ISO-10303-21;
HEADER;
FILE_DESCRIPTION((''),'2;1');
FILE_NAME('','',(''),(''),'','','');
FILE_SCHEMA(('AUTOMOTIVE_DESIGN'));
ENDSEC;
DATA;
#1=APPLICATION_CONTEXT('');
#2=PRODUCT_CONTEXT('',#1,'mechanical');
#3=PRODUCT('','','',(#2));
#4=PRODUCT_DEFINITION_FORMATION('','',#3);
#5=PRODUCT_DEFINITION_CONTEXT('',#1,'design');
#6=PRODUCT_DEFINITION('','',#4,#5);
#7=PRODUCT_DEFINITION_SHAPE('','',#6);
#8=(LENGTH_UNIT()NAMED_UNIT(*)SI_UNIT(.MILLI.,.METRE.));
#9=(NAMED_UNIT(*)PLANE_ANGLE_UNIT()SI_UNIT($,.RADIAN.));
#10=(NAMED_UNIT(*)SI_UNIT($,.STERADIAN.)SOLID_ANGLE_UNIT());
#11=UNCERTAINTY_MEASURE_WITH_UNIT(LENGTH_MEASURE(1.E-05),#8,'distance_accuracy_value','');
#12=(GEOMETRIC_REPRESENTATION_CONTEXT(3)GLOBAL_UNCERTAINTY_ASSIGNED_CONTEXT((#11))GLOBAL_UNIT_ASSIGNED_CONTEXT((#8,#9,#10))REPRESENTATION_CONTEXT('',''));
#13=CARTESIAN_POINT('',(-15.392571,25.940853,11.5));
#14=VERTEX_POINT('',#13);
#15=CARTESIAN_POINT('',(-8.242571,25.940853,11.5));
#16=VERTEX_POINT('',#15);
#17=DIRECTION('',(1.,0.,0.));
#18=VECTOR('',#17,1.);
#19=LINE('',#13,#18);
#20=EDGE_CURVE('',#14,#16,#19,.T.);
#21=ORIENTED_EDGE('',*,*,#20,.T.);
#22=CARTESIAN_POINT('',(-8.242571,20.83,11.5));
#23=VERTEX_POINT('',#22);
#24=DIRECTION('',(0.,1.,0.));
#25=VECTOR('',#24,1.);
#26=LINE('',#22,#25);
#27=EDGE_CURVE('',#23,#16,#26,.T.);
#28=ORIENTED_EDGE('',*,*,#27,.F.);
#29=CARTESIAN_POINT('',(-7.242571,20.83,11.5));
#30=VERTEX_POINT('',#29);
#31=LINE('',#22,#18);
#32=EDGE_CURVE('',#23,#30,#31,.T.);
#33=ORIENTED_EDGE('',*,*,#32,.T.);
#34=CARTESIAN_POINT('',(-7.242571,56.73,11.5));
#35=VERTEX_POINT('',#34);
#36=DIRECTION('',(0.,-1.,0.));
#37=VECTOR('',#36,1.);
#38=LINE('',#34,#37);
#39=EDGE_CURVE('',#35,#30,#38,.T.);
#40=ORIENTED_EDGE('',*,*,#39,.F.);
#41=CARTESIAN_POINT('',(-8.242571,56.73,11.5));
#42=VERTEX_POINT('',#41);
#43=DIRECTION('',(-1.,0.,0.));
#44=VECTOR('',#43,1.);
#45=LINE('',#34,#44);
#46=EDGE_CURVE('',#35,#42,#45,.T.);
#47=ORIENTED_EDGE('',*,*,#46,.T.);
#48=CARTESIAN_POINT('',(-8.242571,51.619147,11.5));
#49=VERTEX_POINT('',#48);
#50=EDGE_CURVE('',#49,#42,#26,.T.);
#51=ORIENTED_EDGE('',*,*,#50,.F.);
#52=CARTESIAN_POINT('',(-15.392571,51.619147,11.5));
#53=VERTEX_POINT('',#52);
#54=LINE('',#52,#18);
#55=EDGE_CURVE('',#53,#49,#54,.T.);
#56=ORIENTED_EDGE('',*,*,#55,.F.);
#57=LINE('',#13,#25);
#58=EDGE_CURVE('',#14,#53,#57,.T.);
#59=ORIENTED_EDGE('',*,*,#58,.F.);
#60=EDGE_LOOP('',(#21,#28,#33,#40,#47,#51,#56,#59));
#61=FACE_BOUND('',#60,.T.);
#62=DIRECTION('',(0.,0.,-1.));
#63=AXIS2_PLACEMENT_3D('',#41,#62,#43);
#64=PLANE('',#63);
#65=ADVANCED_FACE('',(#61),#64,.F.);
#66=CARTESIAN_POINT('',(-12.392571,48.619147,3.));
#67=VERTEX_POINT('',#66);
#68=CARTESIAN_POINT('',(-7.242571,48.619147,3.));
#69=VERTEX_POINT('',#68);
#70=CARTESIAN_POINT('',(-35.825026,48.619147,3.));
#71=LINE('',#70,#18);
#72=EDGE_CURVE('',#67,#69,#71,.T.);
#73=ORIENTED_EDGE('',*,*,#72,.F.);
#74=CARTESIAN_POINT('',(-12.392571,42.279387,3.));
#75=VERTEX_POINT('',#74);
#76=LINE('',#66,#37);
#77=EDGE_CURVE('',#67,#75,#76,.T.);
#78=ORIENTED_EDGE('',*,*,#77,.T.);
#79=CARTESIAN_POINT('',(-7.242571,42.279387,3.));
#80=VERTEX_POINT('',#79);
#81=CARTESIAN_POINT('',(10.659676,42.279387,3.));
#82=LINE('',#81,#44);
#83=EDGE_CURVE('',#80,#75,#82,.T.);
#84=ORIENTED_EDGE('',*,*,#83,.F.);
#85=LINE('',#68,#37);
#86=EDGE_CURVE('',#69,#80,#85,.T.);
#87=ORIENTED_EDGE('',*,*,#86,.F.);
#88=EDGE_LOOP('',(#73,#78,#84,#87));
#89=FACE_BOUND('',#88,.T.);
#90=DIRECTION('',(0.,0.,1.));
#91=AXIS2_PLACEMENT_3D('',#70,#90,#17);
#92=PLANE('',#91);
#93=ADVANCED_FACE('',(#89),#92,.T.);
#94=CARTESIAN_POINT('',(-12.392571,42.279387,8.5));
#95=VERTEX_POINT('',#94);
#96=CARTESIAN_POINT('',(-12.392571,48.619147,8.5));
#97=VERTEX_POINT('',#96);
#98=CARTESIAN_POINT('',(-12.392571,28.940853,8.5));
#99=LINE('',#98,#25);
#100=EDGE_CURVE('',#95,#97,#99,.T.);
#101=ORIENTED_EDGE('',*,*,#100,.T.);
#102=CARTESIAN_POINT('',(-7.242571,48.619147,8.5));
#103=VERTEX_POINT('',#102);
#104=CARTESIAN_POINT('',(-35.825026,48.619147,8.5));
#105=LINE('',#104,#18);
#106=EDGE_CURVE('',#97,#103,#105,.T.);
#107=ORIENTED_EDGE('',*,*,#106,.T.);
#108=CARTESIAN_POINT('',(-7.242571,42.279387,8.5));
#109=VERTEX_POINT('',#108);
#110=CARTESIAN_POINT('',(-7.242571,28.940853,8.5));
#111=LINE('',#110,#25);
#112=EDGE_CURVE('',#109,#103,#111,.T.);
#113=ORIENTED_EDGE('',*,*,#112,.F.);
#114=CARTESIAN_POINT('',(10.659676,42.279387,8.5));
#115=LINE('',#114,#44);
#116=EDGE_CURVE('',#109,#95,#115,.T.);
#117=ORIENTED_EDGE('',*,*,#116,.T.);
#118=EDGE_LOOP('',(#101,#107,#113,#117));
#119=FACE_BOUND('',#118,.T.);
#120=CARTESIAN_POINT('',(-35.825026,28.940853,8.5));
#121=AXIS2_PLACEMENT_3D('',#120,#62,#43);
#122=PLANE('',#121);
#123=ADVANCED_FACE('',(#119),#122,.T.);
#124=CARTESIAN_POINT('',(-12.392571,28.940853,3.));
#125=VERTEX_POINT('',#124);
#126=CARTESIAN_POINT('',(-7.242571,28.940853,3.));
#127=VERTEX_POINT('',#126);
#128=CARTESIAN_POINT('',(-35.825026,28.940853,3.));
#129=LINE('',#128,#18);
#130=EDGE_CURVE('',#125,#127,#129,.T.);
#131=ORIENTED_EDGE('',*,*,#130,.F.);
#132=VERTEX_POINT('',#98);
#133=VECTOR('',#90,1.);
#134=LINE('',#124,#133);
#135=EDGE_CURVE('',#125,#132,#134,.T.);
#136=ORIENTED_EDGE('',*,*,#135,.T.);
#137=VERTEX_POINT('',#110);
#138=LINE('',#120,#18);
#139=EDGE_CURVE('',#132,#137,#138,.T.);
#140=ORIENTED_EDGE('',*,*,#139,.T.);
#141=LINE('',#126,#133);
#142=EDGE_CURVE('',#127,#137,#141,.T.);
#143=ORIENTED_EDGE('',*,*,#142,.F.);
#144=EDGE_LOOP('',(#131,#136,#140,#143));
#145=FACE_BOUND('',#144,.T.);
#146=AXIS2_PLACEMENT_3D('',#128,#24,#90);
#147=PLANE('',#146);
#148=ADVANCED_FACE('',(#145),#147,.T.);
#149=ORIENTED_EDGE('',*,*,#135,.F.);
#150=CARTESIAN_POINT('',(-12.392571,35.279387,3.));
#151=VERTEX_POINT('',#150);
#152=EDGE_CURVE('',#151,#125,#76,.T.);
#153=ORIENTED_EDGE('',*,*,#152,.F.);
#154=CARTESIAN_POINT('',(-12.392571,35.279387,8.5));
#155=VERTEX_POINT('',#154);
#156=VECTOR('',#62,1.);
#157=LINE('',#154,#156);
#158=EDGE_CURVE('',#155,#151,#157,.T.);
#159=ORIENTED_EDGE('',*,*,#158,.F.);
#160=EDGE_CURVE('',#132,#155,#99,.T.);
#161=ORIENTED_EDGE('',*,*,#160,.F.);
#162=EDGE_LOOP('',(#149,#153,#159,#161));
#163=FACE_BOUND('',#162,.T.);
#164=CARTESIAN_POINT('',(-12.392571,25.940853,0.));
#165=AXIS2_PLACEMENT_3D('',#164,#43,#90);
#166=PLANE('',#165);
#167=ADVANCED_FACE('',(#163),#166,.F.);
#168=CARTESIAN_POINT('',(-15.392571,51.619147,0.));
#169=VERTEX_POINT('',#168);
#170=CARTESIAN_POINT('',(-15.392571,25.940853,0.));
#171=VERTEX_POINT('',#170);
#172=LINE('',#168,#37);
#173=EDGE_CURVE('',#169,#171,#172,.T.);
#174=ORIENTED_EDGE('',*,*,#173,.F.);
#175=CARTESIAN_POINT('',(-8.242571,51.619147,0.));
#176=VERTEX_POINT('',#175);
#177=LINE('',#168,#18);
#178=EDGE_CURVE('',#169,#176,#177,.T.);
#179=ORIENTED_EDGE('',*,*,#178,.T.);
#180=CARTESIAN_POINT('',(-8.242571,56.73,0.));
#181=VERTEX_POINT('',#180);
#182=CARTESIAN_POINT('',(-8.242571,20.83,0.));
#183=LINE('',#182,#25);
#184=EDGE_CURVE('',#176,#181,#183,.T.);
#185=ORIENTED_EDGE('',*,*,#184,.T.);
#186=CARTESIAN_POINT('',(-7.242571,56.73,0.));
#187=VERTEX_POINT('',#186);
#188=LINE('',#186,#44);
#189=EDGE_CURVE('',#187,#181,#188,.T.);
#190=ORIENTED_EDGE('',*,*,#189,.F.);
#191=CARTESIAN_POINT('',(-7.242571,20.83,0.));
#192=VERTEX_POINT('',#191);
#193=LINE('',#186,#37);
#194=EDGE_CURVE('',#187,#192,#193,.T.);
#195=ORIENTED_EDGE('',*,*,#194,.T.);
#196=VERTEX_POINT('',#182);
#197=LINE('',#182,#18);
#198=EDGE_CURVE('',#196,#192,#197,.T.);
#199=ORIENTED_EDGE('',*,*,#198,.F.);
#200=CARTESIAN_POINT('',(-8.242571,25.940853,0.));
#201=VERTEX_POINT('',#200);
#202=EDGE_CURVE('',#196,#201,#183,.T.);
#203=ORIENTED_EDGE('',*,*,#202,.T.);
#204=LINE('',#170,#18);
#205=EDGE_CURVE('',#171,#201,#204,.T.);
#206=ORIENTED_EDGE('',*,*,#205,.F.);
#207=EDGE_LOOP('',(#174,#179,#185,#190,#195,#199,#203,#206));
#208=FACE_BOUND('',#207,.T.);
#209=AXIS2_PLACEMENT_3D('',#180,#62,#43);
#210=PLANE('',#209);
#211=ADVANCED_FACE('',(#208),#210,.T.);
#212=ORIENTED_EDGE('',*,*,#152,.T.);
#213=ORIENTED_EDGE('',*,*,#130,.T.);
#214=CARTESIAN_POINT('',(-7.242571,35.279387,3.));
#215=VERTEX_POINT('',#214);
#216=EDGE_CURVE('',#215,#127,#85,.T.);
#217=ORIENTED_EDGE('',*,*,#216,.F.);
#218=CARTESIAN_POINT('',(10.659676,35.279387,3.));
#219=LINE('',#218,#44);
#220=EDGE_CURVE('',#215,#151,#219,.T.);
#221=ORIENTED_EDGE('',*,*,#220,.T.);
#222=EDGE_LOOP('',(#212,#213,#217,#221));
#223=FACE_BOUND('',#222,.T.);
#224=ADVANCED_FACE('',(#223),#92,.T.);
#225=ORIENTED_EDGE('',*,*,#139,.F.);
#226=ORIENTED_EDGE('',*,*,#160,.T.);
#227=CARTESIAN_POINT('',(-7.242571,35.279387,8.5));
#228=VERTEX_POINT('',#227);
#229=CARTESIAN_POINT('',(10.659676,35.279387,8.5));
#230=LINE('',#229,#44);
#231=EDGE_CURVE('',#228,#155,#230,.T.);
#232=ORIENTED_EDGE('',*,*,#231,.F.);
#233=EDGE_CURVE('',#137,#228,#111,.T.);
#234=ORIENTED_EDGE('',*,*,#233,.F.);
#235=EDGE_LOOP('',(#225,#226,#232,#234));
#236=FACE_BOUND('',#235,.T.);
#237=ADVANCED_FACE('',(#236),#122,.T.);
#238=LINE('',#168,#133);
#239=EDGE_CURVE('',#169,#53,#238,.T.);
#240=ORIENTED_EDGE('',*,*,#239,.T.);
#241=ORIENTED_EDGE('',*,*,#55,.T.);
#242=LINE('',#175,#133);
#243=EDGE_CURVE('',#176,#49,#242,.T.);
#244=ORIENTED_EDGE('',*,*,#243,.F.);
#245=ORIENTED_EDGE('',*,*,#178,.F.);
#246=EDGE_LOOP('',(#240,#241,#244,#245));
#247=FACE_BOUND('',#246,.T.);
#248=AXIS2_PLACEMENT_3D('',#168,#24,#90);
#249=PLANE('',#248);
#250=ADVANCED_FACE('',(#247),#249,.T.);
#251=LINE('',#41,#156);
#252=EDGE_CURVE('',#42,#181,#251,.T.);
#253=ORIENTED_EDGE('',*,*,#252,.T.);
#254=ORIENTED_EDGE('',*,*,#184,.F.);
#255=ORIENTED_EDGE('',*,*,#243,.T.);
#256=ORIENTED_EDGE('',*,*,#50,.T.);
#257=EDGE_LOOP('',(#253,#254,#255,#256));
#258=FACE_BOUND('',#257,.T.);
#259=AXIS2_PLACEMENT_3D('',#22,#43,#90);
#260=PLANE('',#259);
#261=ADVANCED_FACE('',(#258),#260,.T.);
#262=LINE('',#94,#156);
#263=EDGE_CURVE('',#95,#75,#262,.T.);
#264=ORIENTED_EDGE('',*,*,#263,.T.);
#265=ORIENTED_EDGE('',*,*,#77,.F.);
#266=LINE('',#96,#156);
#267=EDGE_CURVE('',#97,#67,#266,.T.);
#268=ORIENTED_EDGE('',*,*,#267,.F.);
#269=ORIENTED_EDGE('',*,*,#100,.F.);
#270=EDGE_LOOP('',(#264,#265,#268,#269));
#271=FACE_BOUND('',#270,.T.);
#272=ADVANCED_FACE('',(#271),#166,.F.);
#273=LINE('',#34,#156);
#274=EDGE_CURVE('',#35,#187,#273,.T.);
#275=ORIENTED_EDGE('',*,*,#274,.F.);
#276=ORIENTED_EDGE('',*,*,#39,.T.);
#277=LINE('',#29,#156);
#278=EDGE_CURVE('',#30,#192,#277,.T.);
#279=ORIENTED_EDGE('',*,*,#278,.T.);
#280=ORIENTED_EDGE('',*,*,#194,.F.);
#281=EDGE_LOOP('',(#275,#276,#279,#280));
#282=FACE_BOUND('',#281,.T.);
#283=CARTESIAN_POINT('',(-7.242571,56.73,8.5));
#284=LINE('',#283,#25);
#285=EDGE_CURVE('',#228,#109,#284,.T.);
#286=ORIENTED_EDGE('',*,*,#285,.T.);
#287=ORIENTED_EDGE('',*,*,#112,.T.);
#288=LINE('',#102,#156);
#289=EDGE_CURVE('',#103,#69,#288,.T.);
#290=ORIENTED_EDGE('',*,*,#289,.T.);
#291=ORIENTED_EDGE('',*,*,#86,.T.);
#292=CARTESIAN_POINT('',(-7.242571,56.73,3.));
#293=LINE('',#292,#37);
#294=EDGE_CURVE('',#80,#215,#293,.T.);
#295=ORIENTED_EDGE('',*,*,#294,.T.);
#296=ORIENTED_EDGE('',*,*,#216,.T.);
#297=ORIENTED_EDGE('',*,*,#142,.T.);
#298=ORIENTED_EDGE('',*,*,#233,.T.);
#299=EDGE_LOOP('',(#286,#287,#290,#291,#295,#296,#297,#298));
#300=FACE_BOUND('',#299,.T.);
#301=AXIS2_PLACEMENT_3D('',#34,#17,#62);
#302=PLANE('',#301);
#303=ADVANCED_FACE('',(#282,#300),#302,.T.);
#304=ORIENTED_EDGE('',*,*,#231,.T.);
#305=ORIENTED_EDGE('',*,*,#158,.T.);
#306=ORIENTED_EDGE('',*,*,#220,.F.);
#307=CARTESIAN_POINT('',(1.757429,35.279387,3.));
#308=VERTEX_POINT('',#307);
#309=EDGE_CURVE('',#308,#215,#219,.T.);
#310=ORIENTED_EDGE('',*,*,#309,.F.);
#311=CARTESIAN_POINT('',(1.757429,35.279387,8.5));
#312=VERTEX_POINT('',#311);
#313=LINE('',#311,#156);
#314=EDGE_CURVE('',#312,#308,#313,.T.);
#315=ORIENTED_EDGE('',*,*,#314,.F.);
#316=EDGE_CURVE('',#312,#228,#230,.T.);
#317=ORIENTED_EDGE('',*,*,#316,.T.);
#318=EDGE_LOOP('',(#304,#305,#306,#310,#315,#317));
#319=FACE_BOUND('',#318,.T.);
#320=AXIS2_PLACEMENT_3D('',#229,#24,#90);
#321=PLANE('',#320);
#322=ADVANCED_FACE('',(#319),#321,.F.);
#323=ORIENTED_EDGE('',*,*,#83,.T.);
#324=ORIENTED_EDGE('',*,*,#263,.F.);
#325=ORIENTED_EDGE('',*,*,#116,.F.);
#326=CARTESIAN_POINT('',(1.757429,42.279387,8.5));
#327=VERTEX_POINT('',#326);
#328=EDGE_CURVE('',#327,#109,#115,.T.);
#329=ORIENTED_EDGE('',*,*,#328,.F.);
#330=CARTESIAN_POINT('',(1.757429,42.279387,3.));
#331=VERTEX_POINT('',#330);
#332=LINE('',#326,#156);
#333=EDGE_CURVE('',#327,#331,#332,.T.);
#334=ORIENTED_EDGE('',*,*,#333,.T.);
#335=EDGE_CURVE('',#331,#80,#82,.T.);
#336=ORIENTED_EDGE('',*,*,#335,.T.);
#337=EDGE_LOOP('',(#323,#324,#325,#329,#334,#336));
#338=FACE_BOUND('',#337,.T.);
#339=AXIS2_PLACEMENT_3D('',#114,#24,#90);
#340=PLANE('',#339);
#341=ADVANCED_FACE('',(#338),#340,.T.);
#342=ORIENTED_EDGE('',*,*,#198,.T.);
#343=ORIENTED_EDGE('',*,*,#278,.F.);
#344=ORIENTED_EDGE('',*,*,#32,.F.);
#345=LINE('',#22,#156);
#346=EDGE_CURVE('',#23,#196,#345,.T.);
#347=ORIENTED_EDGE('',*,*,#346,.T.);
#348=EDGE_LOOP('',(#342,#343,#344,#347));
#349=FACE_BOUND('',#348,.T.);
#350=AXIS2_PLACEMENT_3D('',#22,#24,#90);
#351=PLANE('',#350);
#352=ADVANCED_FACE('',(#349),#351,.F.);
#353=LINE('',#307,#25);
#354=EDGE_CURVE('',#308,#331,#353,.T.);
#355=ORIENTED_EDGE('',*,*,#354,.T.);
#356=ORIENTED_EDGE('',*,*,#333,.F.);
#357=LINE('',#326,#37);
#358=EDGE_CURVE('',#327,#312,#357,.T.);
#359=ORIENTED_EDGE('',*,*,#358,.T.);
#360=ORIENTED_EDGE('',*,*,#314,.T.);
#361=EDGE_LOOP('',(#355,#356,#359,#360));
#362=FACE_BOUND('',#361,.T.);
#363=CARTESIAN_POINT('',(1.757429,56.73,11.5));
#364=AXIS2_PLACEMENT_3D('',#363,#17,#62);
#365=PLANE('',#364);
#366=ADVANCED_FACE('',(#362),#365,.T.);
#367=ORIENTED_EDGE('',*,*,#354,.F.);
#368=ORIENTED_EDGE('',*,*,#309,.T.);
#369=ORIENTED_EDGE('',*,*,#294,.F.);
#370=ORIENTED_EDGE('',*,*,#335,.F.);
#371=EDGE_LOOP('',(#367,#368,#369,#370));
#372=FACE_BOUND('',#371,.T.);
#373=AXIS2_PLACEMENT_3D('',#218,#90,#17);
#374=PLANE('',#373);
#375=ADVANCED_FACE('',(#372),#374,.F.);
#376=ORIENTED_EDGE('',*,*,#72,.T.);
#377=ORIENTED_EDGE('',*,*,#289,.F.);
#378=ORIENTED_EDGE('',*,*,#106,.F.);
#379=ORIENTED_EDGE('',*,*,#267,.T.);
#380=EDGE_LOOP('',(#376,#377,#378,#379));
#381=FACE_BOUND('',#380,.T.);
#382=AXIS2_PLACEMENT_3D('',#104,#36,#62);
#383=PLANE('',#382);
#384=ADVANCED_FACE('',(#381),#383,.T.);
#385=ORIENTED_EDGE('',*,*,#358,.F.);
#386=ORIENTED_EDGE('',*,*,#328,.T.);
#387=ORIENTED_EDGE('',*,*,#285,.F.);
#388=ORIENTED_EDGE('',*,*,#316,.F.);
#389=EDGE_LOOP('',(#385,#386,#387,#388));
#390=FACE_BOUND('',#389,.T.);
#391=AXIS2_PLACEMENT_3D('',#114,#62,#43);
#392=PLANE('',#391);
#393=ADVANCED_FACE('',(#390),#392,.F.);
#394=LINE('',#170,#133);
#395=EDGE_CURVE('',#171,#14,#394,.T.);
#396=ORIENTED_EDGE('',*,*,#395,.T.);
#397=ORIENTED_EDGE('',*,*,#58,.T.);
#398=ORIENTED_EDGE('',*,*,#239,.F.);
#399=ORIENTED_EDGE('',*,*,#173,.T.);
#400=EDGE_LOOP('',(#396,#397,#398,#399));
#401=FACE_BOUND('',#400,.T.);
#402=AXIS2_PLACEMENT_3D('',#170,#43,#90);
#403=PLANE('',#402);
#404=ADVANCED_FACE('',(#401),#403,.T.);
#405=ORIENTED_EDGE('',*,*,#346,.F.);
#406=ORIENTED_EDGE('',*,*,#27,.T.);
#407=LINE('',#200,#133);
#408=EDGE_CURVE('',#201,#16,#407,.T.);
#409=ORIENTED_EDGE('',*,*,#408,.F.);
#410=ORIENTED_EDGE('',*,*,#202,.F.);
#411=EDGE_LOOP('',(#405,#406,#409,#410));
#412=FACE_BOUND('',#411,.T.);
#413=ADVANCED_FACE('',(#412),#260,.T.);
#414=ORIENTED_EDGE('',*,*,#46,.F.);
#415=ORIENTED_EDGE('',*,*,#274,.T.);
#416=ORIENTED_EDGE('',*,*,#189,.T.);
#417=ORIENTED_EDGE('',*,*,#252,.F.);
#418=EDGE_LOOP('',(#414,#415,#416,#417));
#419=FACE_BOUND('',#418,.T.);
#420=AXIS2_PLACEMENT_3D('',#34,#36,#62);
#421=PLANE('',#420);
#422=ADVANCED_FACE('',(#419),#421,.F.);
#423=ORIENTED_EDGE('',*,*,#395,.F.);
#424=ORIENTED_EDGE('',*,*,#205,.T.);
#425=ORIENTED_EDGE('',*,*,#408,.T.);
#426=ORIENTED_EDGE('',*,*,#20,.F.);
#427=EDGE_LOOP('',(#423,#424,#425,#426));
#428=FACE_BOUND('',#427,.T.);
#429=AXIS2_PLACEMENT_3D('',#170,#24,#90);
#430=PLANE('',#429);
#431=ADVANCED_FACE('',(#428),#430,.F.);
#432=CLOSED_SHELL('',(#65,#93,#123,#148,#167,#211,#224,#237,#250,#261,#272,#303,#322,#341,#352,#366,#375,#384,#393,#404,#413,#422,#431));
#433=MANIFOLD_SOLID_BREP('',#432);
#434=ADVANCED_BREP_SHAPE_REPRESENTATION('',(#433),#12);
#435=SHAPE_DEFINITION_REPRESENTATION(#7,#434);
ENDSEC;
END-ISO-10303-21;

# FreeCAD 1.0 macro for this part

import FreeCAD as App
import Part
import Sketcher

doc = App.newDocument("Part")
body = doc.addObject("PartDesign::Body", "Body")

# Sketch on XY plane
sketch1 = doc.addObject("Sketcher::SketchObject", "Sketch")
body.addObject(sketch1)
sketch1.AttachmentSupport = (doc.XY_Plane, [""])
sketch1.MapMode = "FlatFace"
sketch1.addGeometry([
    Part.LineSegment(App.Vector(-8.2, 56.7, 0), App.Vector(-8.2, 20.8, 0)),
    Part.LineSegment(App.Vector(-8.2, 20.8, 0), App.Vector(-7.2, 20.8, 0)),
    Part.LineSegment(App.Vector(-7.2, 20.8, 0), App.Vector(-7.2, 56.7, 0)),
    Part.LineSegment(App.Vector(-7.2, 56.7, 0), App.Vector(-8.2, 56.7, 0)),
], False)
sketch1.addConstraint([
    Sketcher.Constraint("Coincident", 0, 2, 1, 1),
    Sketcher.Constraint("Coincident", 1, 2, 2, 1),
    Sketcher.Constraint("Coincident", 2, 2, 3, 1),
    Sketcher.Constraint("Coincident", 3, 2, 0, 1),
    Sketcher.Constraint("Vertical", 0),
    Sketcher.Constraint("Horizontal", 1),
    Sketcher.Constraint("Vertical", 2),
    Sketcher.Constraint("Horizontal", 3),
    Sketcher.Constraint("DistanceX", 1, 1, 1, 2, 1.0),
    Sketcher.Constraint("DistanceY", 0, 2, 0, 1, 35.9),
    Sketcher.Constraint("DistanceY", -1, 1, 0, 2, 20.83),
    Sketcher.Constraint("DistanceX", 0, 2, -1, 1, 8.242571),
])
pad1 = doc.addObject("PartDesign::Pad", "Pad")
body.addObject(pad1)
pad1.Profile = sketch1
pad1.Length = 11.5

# Sketch on YZ plane
sketch2 = doc.addObject("Sketcher::SketchObject", "Sketch001")
body.addObject(sketch2)
sketch2.AttachmentSupport = (doc.YZ_Plane, [""])
sketch2.MapMode = "FlatFace"
sketch2.AttachmentOffset = App.Placement(App.Vector(0, 0, -8.242571), App.Rotation())
sketch2.addGeometry([
    Part.LineSegment(App.Vector(52, 0, 0), App.Vector(26, 0, 0)),
    Part.LineSegment(App.Vector(26, 0, 0), App.Vector(26, 12, 0)),
    Part.LineSegment(App.Vector(26, 12, 0), App.Vector(52, 12, 0)),
    Part.LineSegment(App.Vector(52, 12, 0), App.Vector(52, 0, 0)),
], False)
sketch2.addConstraint([
    Sketcher.Constraint("Coincident", 0, 2, 1, 1),
    Sketcher.Constraint("Coincident", 1, 2, 2, 1),
    Sketcher.Constraint("Coincident", 2, 2, 3, 1),
    Sketcher.Constraint("Coincident", 3, 2, 0, 1),
    Sketcher.Constraint("Horizontal", 0),
    Sketcher.Constraint("Vertical", 1),
    Sketcher.Constraint("Horizontal", 2),
    Sketcher.Constraint("Vertical", 3),
    Sketcher.Constraint("PointOnObject", 0, 2, -1),
    Sketcher.Constraint("DistanceY", 1, 1, 1, 2, 11.5),
    Sketcher.Constraint("DistanceX", 0, 2, 0, 1, 25.678293),
    Sketcher.Constraint("DistanceX", -1, 1, 0, 2, 25.940853),
])
pad2 = doc.addObject("PartDesign::Pad", "Pad001")
body.addObject(pad2)
pad2.Profile = sketch2
pad2.Length = 7.15
pad2.Reversed = True

# Sketch on YZ plane
sketch3 = doc.addObject("Sketcher::SketchObject", "Sketch002")
body.addObject(sketch3)
sketch3.AttachmentSupport = (doc.YZ_Plane, [""])
sketch3.MapMode = "FlatFace"
sketch3.AttachmentOffset = App.Placement(App.Vector(0, 0, -7.242571), App.Rotation())
sketch3.addGeometry([
    Part.LineSegment(App.Vector(49, 8, 0), App.Vector(29, 8, 0)),
    Part.LineSegment(App.Vector(29, 8, 0), App.Vector(29, 3, 0)),
    Part.LineSegment(App.Vector(29, 3, 0), App.Vector(49, 3, 0)),
    Part.LineSegment(App.Vector(49, 3, 0), App.Vector(49, 8, 0)),
], False)
sketch3.addConstraint([
    Sketcher.Constraint("Coincident", 0, 2, 1, 1),
    Sketcher.Constraint("Coincident", 1, 2, 2, 1),
    Sketcher.Constraint("Coincident", 2, 2, 3, 1),
    Sketcher.Constraint("Coincident", 3, 2, 0, 1),
    Sketcher.Constraint("Horizontal", 0),
    Sketcher.Constraint("Vertical", 1),
    Sketcher.Constraint("Horizontal", 2),
    Sketcher.Constraint("Vertical", 3),
    Sketcher.Constraint("DistanceY", 1, 2, 1, 1, 5.5),
    Sketcher.Constraint("DistanceY", -1, 1, 1, 2, 3.0),
    Sketcher.Constraint("DistanceX", 0, 2, 0, 1, 19.678293),
    Sketcher.Constraint("DistanceX", -1, 1, 0, 2, 28.940853),
])
pocket1 = doc.addObject("PartDesign::Pocket", "Pocket")
body.addObject(pocket1)
pocket1.Profile = sketch3
pocket1.Length = 5.15

# Sketch on YZ plane
sketch4 = doc.addObject("Sketcher::SketchObject", "Sketch003")
body.addObject(sketch4)
sketch4.AttachmentSupport = (doc.YZ_Plane, [""])
sketch4.MapMode = "FlatFace"
sketch4.AttachmentOffset = App.Placement(App.Vector(0, 0, -12.392571), App.Rotation())
sketch4.addGeometry([
    Part.LineSegment(App.Vector(42, 8, 0), App.Vector(35, 8, 0)),
    Part.LineSegment(App.Vector(35, 8, 0), App.Vector(35, 3, 0)),
    Part.LineSegment(App.Vector(35, 3, 0), App.Vector(42, 3, 0)),
    Part.LineSegment(App.Vector(42, 3, 0), App.Vector(42, 8, 0)),
], False)
sketch4.addConstraint([
    Sketcher.Constraint("Coincident", 0, 2, 1, 1),
    Sketcher.Constraint("Coincident", 1, 2, 2, 1),
    Sketcher.Constraint("Coincident", 2, 2, 3, 1),
    Sketcher.Constraint("Coincident", 3, 2, 0, 1),
    Sketcher.Constraint("Horizontal", 0),
    Sketcher.Constraint("Vertical", 1),
    Sketcher.Constraint("Horizontal", 2),
    Sketcher.Constraint("Vertical", 3),
    Sketcher.Constraint("DistanceX", 0, 2, 0, 1, 7.0),
    Sketcher.Constraint("DistanceY", 1, 2, 1, 1, 5.5),
    Sketcher.Constraint("DistanceY", -1, 1, 1, 2, 3.0),
    Sketcher.Constraint("DistanceX", -1, 1, 0, 2, 35.279387),
])
pad3 = doc.addObject("PartDesign::Pad", "Pad002")
body.addObject(pad3)
pad3.Profile = sketch4
pad3.Length = 14.15

doc.recompute()
